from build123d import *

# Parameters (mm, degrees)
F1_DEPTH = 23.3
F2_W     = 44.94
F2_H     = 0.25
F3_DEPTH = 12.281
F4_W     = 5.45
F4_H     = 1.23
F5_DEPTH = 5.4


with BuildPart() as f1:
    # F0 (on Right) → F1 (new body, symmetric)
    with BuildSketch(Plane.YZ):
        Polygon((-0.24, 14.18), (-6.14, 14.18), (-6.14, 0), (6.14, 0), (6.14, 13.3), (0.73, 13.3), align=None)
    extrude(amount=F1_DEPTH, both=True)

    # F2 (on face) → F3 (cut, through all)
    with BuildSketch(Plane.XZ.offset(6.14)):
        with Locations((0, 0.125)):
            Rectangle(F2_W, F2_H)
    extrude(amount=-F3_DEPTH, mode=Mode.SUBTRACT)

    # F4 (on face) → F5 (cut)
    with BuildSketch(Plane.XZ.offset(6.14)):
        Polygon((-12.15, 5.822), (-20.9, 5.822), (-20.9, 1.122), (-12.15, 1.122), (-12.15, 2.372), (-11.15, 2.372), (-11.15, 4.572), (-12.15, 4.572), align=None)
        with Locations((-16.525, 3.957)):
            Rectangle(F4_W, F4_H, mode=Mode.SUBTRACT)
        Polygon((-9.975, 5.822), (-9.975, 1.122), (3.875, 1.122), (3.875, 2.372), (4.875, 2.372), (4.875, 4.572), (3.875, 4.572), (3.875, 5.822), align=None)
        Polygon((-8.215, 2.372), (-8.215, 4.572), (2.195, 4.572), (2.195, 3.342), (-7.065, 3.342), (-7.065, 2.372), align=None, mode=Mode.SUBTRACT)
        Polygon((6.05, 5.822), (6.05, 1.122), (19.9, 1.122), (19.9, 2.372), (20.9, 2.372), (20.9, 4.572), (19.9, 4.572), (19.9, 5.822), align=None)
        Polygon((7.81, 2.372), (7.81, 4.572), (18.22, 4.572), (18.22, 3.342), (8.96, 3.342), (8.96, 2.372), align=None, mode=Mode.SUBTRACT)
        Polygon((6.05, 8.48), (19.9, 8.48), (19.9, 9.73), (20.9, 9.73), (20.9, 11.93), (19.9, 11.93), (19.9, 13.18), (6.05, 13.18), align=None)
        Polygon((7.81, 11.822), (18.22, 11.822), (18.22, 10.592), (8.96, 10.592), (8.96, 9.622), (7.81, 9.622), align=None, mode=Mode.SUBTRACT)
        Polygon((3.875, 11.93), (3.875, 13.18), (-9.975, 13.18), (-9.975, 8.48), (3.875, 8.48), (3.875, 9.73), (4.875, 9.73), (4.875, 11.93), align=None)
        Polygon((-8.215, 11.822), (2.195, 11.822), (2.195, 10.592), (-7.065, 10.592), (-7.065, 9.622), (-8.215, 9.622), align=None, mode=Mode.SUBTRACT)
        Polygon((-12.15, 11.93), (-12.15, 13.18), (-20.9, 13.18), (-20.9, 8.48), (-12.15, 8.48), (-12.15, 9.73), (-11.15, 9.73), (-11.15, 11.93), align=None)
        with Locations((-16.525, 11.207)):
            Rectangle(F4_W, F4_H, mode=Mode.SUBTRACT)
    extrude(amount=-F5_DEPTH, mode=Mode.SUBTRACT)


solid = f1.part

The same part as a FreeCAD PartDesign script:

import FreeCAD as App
import Part
import Sketcher
from FreeCAD import Vector


def add_polygon(sketch, points):
    """Adds a closed chain of lines whose ends are joined by coincident constraints."""
    first, n = sketch.GeometryCount, len(points)
    for a, b in zip(points, points[1:] + points[:1]):
        sketch.addGeometry(Part.LineSegment(App.Vector(*a, 0), App.Vector(*b, 0)), False)
    for i in range(n):
        sketch.addConstraint(Sketcher.Constraint("Coincident", first + i, 2, first + (i + 1) % n, 1))

doc = App.newDocument("Part")
body = doc.addObject("PartDesign::Body", "Body")

sketch1 = body.newObject("Sketcher::SketchObject", "Sketch")
sketch1.AttachmentSupport = (doc.getObject("YZ_Plane"), [""])
sketch1.MapMode = "FlatFace"
add_polygon(sketch1, [(-0.2, 14.2), (-6.1, 14.2), (-6.1, 0), (6.1, 0), (6.1, 13.3), (0.7, 13.3)])
sketch1.addConstraint(Sketcher.Constraint("Horizontal", 0))
sketch1.addConstraint(Sketcher.Constraint("Vertical", 1))
sketch1.addConstraint(Sketcher.Constraint("Horizontal", 2))
sketch1.addConstraint(Sketcher.Constraint("Vertical", 3))
sketch1.addConstraint(Sketcher.Constraint("Horizontal", 4))
sketch1.addConstraint(Sketcher.Constraint("Symmetric", 1, 2, 2, 2, -1, 1))
sketch1.addConstraint(Sketcher.Constraint("DistanceX", 0, 2, 0, 1, 5.9))
sketch1.addConstraint(Sketcher.Constraint("DistanceY", 3, 1, 3, 2, 13.3))
sketch1.addConstraint(Sketcher.Constraint("DistanceX", 2, 1, 2, 2, 12.28))
sketch1.addConstraint(Sketcher.Constraint("DistanceX", 4, 2, 4, 1, 5.41))
sketch1.addConstraint(Sketcher.Constraint("DistanceY", 1, 2, 1, 1, 14.18))
pad1 = body.newObject("PartDesign::Pad", "Pad")
pad1.Profile = sketch1
pad1.Length = 46.6
pad1.Midplane = True

sketch2 = body.newObject("Sketcher::SketchObject", "Sketch001")
sketch2.AttachmentSupport = (doc.getObject("XZ_Plane"), [""])
sketch2.MapMode = "FlatFace"
sketch2.AttachmentOffset = App.Placement(Vector(0, 0, 6.14), App.Rotation())
add_polygon(sketch2, [(-22.47, 0.25), (-22.47, 0), (22.47, 0), (22.47, 0.25)])
sketch2.addConstraint(Sketcher.Constraint("Vertical", 0))
sketch2.addConstraint(Sketcher.Constraint("Horizontal", 1))
sketch2.addConstraint(Sketcher.Constraint("Vertical", 2))
sketch2.addConstraint(Sketcher.Constraint("Horizontal", 3))
sketch2.addConstraint(Sketcher.Constraint("Symmetric", 0, 2, 1, 2, -1, 1))
sketch2.addConstraint(Sketcher.Constraint("DistanceX", 1, 1, 1, 2, 44.94))
sketch2.addConstraint(Sketcher.Constraint("DistanceY", 0, 2, 0, 1, 0.25))
pocket1 = body.newObject("PartDesign::Pocket", "Pocket")
pocket1.Profile = sketch2
pocket1.Type = "ThroughAll"

sketch3 = body.newObject("Sketcher::SketchObject", "Sketch002")
sketch3.AttachmentSupport = (doc.getObject("XZ_Plane"), [""])
sketch3.MapMode = "FlatFace"
sketch3.AttachmentOffset = App.Placement(Vector(0, 0, 6.14), App.Rotation())
add_polygon(sketch3, [(-12.2, 5.8), (-20.9, 5.8), (-20.9, 1.1), (-12.2, 1.1), (-12.2, 2.4), (-11.2, 2.4), (-11.2, 4.6), (-12.2, 4.6)])
add_polygon(sketch3, [(-13.8, 3.3), (-19.2, 3.3), (-19.2, 4.6), (-13.8, 4.6)])
add_polygon(sketch3, [(-10, 5.8), (-10, 1.1), (3.9, 1.1), (3.9, 2.4), (4.9, 2.4), (4.9, 4.6), (3.9, 4.6), (3.9, 5.8)])
add_polygon(sketch3, [(-7.1, 2.4), (-8.2, 2.4), (-8.2, 4.6), (2.2, 4.6), (2.2, 3.3), (-7.1, 3.3)])
add_polygon(sketch3, [(6, 5.8), (6, 1.1), (19.9, 1.1), (19.9, 2.4), (20.9, 2.4), (20.9, 4.6), (19.9, 4.6), (19.9, 5.8)])
add_polygon(sketch3, [(9, 2.4), (7.8, 2.4), (7.8, 4.6), (18.2, 4.6), (18.2, 3.3), (9, 3.3)])
add_polygon(sketch3, [(6, 8.5), (19.9, 8.5), (19.9, 9.7), (20.9, 9.7), (20.9, 11.9), (19.9, 11.9), (19.9, 13.2), (6, 13.2)])
add_polygon(sketch3, [(7.8, 9.6), (7.8, 11.8), (18.2, 11.8), (18.2, 10.6), (9, 10.6), (9, 9.6)])
add_polygon(sketch3, [(3.9, 11.9), (3.9, 13.2), (-10, 13.2), (-10, 8.5), (3.9, 8.5), (3.9, 9.7), (4.9, 9.7), (4.9, 11.9)])
add_polygon(sketch3, [(-8.2, 9.6), (-8.2, 11.8), (2.2, 11.8), (2.2, 10.6), (-7.1, 10.6), (-7.1, 9.6)])
add_polygon(sketch3, [(-12.2, 11.9), (-12.2, 13.2), (-20.9, 13.2), (-20.9, 8.5), (-12.2, 8.5), (-12.2, 9.7), (-11.2, 9.7), (-11.2, 11.9)])
add_polygon(sketch3, [(-13.8, 10.6), (-19.2, 10.6), (-19.2, 11.8), (-13.8, 11.8)])
sketch3.addConstraint(Sketcher.Constraint("Horizontal", 0))
sketch3.addConstraint(Sketcher.Constraint("Vertical", 1))
sketch3.addConstraint(Sketcher.Constraint("Horizontal", 2))
sketch3.addConstraint(Sketcher.Constraint("Vertical", 3))
sketch3.addConstraint(Sketcher.Constraint("Horizontal", 4))
sketch3.addConstraint(Sketcher.Constraint("Vertical", 5))
sketch3.addConstraint(Sketcher.Constraint("Horizontal", 6))
sketch3.addConstraint(Sketcher.Constraint("Vertical", 7))
sketch3.addConstraint(Sketcher.Constraint("Horizontal", 8))
sketch3.addConstraint(Sketcher.Constraint("Vertical", 9))
sketch3.addConstraint(Sketcher.Constraint("Horizontal", 10))
sketch3.addConstraint(Sketcher.Constraint("Vertical", 11))
sketch3.addConstraint(Sketcher.Constraint("Vertical", 12))
sketch3.addConstraint(Sketcher.Constraint("Horizontal", 13))
sketch3.addConstraint(Sketcher.Constraint("Vertical", 14))
sketch3.addConstraint(Sketcher.Constraint("Horizontal", 15))
sketch3.addConstraint(Sketcher.Constraint("Vertical", 16))
sketch3.addConstraint(Sketcher.Constraint("Horizontal", 17))
sketch3.addConstraint(Sketcher.Constraint("Vertical", 18))
sketch3.addConstraint(Sketcher.Constraint("Horizontal", 19))
sketch3.addConstraint(Sketcher.Constraint("Horizontal", 20))
sketch3.addConstraint(Sketcher.Constraint("Vertical", 21))
sketch3.addConstraint(Sketcher.Constraint("Horizontal", 22))
sketch3.addConstraint(Sketcher.Constraint("Vertical", 23))
sketch3.addConstraint(Sketcher.Constraint("Horizontal", 24))
sketch3.addConstraint(Sketcher.Constraint("Vertical", 25))
sketch3.addConstraint(Sketcher.Constraint("Vertical", 26))
sketch3.addConstraint(Sketcher.Constraint("Horizontal", 27))
sketch3.addConstraint(Sketcher.Constraint("Vertical", 28))
sketch3.addConstraint(Sketcher.Constraint("Horizontal", 29))
sketch3.addConstraint(Sketcher.Constraint("Vertical", 30))
sketch3.addConstraint(Sketcher.Constraint("Horizontal", 31))
sketch3.addConstraint(Sketcher.Constraint("Vertical", 32))
sketch3.addConstraint(Sketcher.Constraint("Horizontal", 33))
sketch3.addConstraint(Sketcher.Constraint("Horizontal", 34))
sketch3.addConstraint(Sketcher.Constraint("Vertical", 35))
sketch3.addConstraint(Sketcher.Constraint("Horizontal", 36))
sketch3.addConstraint(Sketcher.Constraint("Vertical", 37))
sketch3.addConstraint(Sketcher.Constraint("Horizontal", 38))
sketch3.addConstraint(Sketcher.Constraint("Vertical", 39))
sketch3.addConstraint(Sketcher.Constraint("Horizontal", 40))
sketch3.addConstraint(Sketcher.Constraint("Vertical", 41))
sketch3.addConstraint(Sketcher.Constraint("Horizontal", 42))
sketch3.addConstraint(Sketcher.Constraint("Vertical", 43))
sketch3.addConstraint(Sketcher.Constraint("Horizontal", 44))
sketch3.addConstraint(Sketcher.Constraint("Vertical", 45))
sketch3.addConstraint(Sketcher.Constraint("Horizontal", 46))
sketch3.addConstraint(Sketcher.Constraint("Vertical", 47))
sketch3.addConstraint(Sketcher.Constraint("Vertical", 48))
sketch3.addConstraint(Sketcher.Constraint("Horizontal", 49))
sketch3.addConstraint(Sketcher.Constraint("Vertical", 50))
sketch3.addConstraint(Sketcher.Constraint("Horizontal", 51))
sketch3.addConstraint(Sketcher.Constraint("Vertical", 52))
sketch3.addConstraint(Sketcher.Constraint("Horizontal", 53))
sketch3.addConstraint(Sketcher.Constraint("Vertical", 54))
sketch3.addConstraint(Sketcher.Constraint("Horizontal", 55))
sketch3.addConstraint(Sketcher.Constraint("Vertical", 56))
sketch3.addConstraint(Sketcher.Constraint("Horizontal", 57))
sketch3.addConstraint(Sketcher.Constraint("Vertical", 58))
sketch3.addConstraint(Sketcher.Constraint("Horizontal", 59))
sketch3.addConstraint(Sketcher.Constraint("Vertical", 60))
sketch3.addConstraint(Sketcher.Constraint("Horizontal", 61))
sketch3.addConstraint(Sketcher.Constraint("Vertical", 62))
sketch3.addConstraint(Sketcher.Constraint("Horizontal", 63))
sketch3.addConstraint(Sketcher.Constraint("Vertical", 64))
sketch3.addConstraint(Sketcher.Constraint("Horizontal", 65))
sketch3.addConstraint(Sketcher.Constraint("Vertical", 66))
sketch3.addConstraint(Sketcher.Constraint("Horizontal", 67))
sketch3.addConstraint(Sketcher.Constraint("Vertical", 68))
sketch3.addConstraint(Sketcher.Constraint("Horizontal", 69))
sketch3.addConstraint(Sketcher.Constraint("Vertical", 70))
sketch3.addConstraint(Sketcher.Constraint("Horizontal", 71))
sketch3.addConstraint(Sketcher.Constraint("Vertical", 72))
sketch3.addConstraint(Sketcher.Constraint("Horizontal", 73))
sketch3.addConstraint(Sketcher.Constraint("Vertical", 74))
sketch3.addConstraint(Sketcher.Constraint("Horizontal", 75))
sketch3.addConstraint(Sketcher.Constraint("Horizontal", 76))
sketch3.addConstraint(Sketcher.Constraint("Vertical", 77))
sketch3.addConstraint(Sketcher.Constraint("Horizontal", 78))
sketch3.addConstraint(Sketcher.Constraint("Vertical", 79))
sketch3.addConstraint(Sketcher.Constraint("Horizontal", 6, 2, 9, 2))
sketch3.addConstraint(Sketcher.Constraint("Horizontal", 2, 2, 12, 2))
sketch3.addConstraint(Sketcher.Constraint("Horizontal", 4, 2, 14, 2))
sketch3.addConstraint(Sketcher.Constraint("Horizontal", 10, 2, 16, 2))
sketch3.addConstraint(Sketcher.Constraint("Horizontal", 7, 2, 18, 2))
sketch3.addConstraint(Sketcher.Constraint("Horizontal", 15, 2, 20, 2))
sketch3.addConstraint(Sketcher.Constraint("Horizontal", 17, 2, 21, 2))
sketch3.addConstraint(Sketcher.Constraint("Horizontal", 11, 2, 23, 2))
sketch3.addConstraint(Sketcher.Constraint("Horizontal", 13, 2, 26, 2))
sketch3.addConstraint(Sketcher.Constraint("Horizontal", 25, 2, 28, 2))
sketch3.addConstraint(Sketcher.Constraint("Horizontal", 22, 2, 30, 2))
sketch3.addConstraint(Sketcher.Constraint("Horizontal", 19, 2, 32, 2))
sketch3.addConstraint(Sketcher.Constraint("Horizontal", 29, 2, 34, 2))
sketch3.addConstraint(Sketcher.Constraint("Horizontal", 31, 2, 35, 2))
sketch3.addConstraint(Sketcher.Constraint("Horizontal", 24, 2, 37, 2))
sketch3.addConstraint(Sketcher.Constraint("Horizontal", 46, 2, 54, 2))
sketch3.addConstraint(Sketcher.Constraint("Horizontal", 47, 2, 56, 2))
sketch3.addConstraint(Sketcher.Constraint("Horizontal", 42, 2, 58, 2))
sketch3.addConstraint(Sketcher.Constraint("Horizontal", 44, 2, 60, 2))
sketch3.addConstraint(Sketcher.Constraint("Horizontal", 49, 2, 62, 2))
sketch3.addConstraint(Sketcher.Constraint("Horizontal", 51, 2, 64, 2))
sketch3.addConstraint(Sketcher.Constraint("Horizontal", 53, 2, 66, 2))
sketch3.addConstraint(Sketcher.Constraint("Horizontal", 55, 2, 68, 2))
sketch3.addConstraint(Sketcher.Constraint("Horizontal", 57, 2, 70, 2))
sketch3.addConstraint(Sketcher.Constraint("Horizontal", 59, 2, 72, 2))
sketch3.addConstraint(Sketcher.Constraint("Horizontal", 61, 2, 74, 2))
sketch3.addConstraint(Sketcher.Constraint("Horizontal", 65, 2, 76, 2))
sketch3.addConstraint(Sketcher.Constraint("Horizontal", 63, 2, 77, 2))
sketch3.addConstraint(Sketcher.Constraint("Vertical", 3, 2, 6, 2))
sketch3.addConstraint(Sketcher.Constraint("Vertical", 14, 2, 17, 2))
sketch3.addConstraint(Sketcher.Constraint("Vertical", 28, 2, 31, 2))
sketch3.addConstraint(Sketcher.Constraint("Vertical", 32, 2, 40, 2))
sketch3.addConstraint(Sketcher.Constraint("Vertical", 30, 2, 42, 2))
sketch3.addConstraint(Sketcher.Constraint("Vertical", 41, 2, 44, 2))
sketch3.addConstraint(Sketcher.Constraint("Vertical", 33, 2, 46, 2))
sketch3.addConstraint(Sketcher.Constraint("Vertical", 35, 2, 48, 2))
sketch3.addConstraint(Sketcher.Constraint("Vertical", 37, 2, 49, 2))
sketch3.addConstraint(Sketcher.Constraint("Vertical", 39, 2, 51, 2))
sketch3.addConstraint(Sketcher.Constraint("Vertical", 18, 2, 54, 2))
sketch3.addConstraint(Sketcher.Constraint("Vertical", 19, 2, 55, 2))
sketch3.addConstraint(Sketcher.Constraint("Vertical", 54, 2, 57, 2))
sketch3.addConstraint(Sketcher.Constraint("Vertical", 16, 2, 59, 2))
sketch3.addConstraint(Sketcher.Constraint("Vertical", 21, 2, 62, 2))
sketch3.addConstraint(Sketcher.Constraint("Vertical", 23, 2, 63, 2))
sketch3.addConstraint(Sketcher.Constraint("Vertical", 25, 2, 65, 2))
sketch3.addConstraint(Sketcher.Constraint("Vertical", 7, 2, 68, 2))
sketch3.addConstraint(Sketcher.Constraint("Vertical", 1, 2, 69, 2))
sketch3.addConstraint(Sketcher.Constraint("Vertical", 68, 2, 71, 2))
sketch3.addConstraint(Sketcher.Constraint("Vertical", 5, 2, 73, 2))
sketch3.addConstraint(Sketcher.Constraint("Vertical", 9, 2, 76, 2))
sketch3.addConstraint(Sketcher.Constraint("Vertical", 11, 2, 78, 2))
sketch3.addConstraint(Sketcher.Constraint("Equal", 6, 15))
sketch3.addConstraint(Sketcher.Constraint("Equal", 19, 27))
sketch3.addConstraint(Sketcher.Constraint("Equal", 17, 29))
sketch3.addConstraint(Sketcher.Constraint("Equal", 20, 34))
sketch3.addConstraint(Sketcher.Constraint("Equal", 22, 36))
sketch3.addConstraint(Sketcher.Constraint("Equal", 3, 7))
sketch3.addConstraint(Sketcher.Constraint("Equal", 32, 41))
sketch3.addConstraint(Sketcher.Constraint("Equal", 35, 43))
sketch3.addConstraint(Sketcher.Constraint("Equal", 41, 45))
sketch3.addConstraint(Sketcher.Constraint("Equal", 43, 48))
sketch3.addConstraint(Sketcher.Constraint("Equal", 37, 50))
sketch3.addConstraint(Sketcher.Constraint("DistanceX", 4, 1, 4, 2, 1.0))
sketch3.addConstraint(Sketcher.Constraint("DistanceY", 1, 2, 1, 1, 4.7))
sketch3.addConstraint(Sketcher.Constraint("DistanceY", 5, 1, 5, 2, 2.2))
sketch3.addConstraint(Sketcher.Constraint("DistanceX", 0, 2, 0, 1, 8.75))
sketch3.addConstraint(Sketcher.Constraint("DistanceX", 8, 2, 8, 1, 5.45))
sketch3.addConstraint(Sketcher.Constraint("DistanceX", 13, 1, 13, 2, 13.85))
sketch3.addConstraint(Sketcher.Constraint("DistanceX", 20, 2, 20, 1, 1.15))
sketch3.addConstraint(Sketcher.Constraint("DistanceX", 22, 1, 22, 2, 10.41))
sketch3.addConstraint(Sketcher.Constraint("DistanceY", 9, 1, 9, 2, 1.23))
sketch3.addConstraint(Sketcher.Constraint("DistanceX", 0, 2, -1, 1, 20.9))
sketch3.addConstraint(Sketcher.Constraint("DistanceX", 10, 2, -1, 1, 13.8))
sketch3.addConstraint(Sketcher.Constraint("DistanceX", -1, 1, 27, 2, 19.9))
sketch3.addConstraint(Sketcher.Constraint("DistanceX", -1, 1, 34, 2, 7.81))
sketch3.addConstraint(Sketcher.Constraint("DistanceY", -1, 1, 40, 2, 8.48))
sketch3.addConstraint(Sketcher.Constraint("DistanceY", -1, 1, 0, 2, 5.822))
sketch3.addConstraint(Sketcher.Constraint("DistanceX", 12, 2, -1, 1, 9.975))
sketch3.addConstraint(Sketcher.Constraint("DistanceX", 20, 2, -1, 1, 8.215))
sketch3.addConstraint(Sketcher.Constraint("DistanceY", -1, 1, 48, 2, 11.822))
pocket2 = body.newObject("PartDesign::Pocket", "Pocket001")
pocket2.Profile = sketch3
pocket2.Length = 5.4

doc.recompute()
